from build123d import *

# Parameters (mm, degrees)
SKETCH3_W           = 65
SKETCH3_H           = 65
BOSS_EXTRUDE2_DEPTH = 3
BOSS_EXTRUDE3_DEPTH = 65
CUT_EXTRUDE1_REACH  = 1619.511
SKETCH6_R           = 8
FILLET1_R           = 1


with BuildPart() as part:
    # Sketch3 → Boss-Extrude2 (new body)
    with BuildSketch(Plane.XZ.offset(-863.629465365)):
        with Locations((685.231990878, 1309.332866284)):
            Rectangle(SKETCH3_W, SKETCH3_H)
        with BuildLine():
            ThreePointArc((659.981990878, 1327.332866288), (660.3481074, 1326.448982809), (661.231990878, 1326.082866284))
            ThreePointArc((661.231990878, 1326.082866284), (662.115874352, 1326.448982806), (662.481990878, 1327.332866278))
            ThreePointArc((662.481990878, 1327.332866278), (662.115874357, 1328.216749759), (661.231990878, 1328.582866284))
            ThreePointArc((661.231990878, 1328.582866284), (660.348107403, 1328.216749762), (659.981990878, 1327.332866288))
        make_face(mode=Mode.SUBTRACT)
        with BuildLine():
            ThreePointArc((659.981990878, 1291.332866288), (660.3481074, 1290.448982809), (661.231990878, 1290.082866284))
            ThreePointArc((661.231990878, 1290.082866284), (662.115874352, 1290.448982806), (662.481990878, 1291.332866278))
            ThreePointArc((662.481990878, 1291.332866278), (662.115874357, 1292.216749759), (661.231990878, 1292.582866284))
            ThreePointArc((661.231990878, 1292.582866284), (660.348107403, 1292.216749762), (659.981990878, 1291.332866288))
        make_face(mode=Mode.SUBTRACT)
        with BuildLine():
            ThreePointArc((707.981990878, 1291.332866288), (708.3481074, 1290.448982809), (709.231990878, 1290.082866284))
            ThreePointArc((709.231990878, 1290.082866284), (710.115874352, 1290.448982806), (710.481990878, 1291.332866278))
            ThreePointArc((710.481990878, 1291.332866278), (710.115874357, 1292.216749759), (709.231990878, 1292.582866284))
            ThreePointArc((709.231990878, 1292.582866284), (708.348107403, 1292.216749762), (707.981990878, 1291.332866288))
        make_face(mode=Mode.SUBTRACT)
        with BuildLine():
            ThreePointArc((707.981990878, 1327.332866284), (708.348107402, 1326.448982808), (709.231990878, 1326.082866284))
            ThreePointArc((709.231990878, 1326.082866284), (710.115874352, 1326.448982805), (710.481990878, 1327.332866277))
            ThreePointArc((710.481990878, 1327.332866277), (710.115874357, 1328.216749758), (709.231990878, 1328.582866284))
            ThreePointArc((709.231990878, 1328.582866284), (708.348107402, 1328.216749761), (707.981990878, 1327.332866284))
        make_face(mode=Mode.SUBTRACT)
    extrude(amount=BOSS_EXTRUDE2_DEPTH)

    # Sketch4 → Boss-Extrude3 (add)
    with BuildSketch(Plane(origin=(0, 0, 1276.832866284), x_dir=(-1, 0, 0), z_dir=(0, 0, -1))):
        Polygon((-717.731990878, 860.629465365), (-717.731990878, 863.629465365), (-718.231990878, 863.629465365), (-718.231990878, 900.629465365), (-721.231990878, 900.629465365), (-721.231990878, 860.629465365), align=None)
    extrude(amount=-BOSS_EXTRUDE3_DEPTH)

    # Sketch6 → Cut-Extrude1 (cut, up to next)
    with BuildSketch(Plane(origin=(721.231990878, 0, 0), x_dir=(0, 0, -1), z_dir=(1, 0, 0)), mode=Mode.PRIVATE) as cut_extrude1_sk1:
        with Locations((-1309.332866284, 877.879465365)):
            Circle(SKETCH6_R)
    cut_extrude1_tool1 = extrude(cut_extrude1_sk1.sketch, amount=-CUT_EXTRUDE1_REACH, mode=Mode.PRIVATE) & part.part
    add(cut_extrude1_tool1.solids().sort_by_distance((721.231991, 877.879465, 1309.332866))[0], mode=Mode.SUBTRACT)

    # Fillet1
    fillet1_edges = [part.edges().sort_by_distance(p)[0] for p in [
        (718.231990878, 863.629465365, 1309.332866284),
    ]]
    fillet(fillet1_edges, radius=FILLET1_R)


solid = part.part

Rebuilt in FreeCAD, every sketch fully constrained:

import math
import FreeCAD as App
import Part
import Sketcher

V = App.Vector
Q = App.Units.Quantity


def edges_at(feature, points):
    """Names of the edges that pass closest to the given points."""
    edges = feature.Shape.Edges
    near = lambda p: min(range(len(edges)), key=lambda i: edges[i].distToShape(Part.Vertex(*p))[0])
    return sorted({f"Edge{near(p) + 1}" for p in points})


def add_polygon(sketch, points):
    """Adds a closed chain of lines whose ends are joined by coincident constraints."""
    first, n = sketch.GeometryCount, len(points)
    for a, b in zip(points, points[1:] + points[:1]):
        sketch.addGeometry(Part.LineSegment(App.Vector(*a, 0), App.Vector(*b, 0)), False)
    for i in range(n):
        sketch.addConstraint(Sketcher.Constraint("Coincident", first + i, 2, first + (i + 1) % n, 1))

doc = App.newDocument("Part")
body = doc.addObject("PartDesign::Body", "Body")

# Sketch on XZ plane
sketch1 = doc.addObject("Sketcher::SketchObject", "Sketch")
body.addObject(sketch1)
sketch1.AttachmentSupport = (doc.XZ_Plane, [""])
sketch1.MapMode = "FlatFace"
sketch1.AttachmentOffset = App.Placement(V(0, 0, -863.629465), App.Rotation())
add_polygon(sketch1, [(652.7, 1341.8), (652.7, 1276.8), (717.7, 1276.8), (717.7, 1341.8)])  # lines 0-3
sketch1.addGeometry(Part.ArcOfCircle(Part.Circle(V(661.2, 1291.3, 0), V(0, 0, 1), 1.2), math.radians(180), math.radians(270)), False)  # 4
sketch1.addGeometry(Part.ArcOfCircle(Part.Circle(V(661.2, 1291.3, 0), V(0, 0, 1), 1.2), math.radians(90), math.radians(180)), False)  # 5
sketch1.addGeometry(Part.ArcOfCircle(Part.Circle(V(661.2, 1291.3, 0), V(0, 0, 1), 1.2), math.radians(0), math.radians(90)), False)  # 6
sketch1.addGeometry(Part.ArcOfCircle(Part.Circle(V(661.2, 1291.3, 0), V(0, 0, 1), 1.3), math.radians(-90), math.radians(0)), False)  # 7
sketch1.addGeometry(Part.ArcOfCircle(Part.Circle(V(709.2, 1291.3, 0), V(0, 0, 1), 1.2), math.radians(180), math.radians(270)), False)  # 8
sketch1.addGeometry(Part.ArcOfCircle(Part.Circle(V(709.2, 1291.3, 0), V(0, 0, 1), 1.2), math.radians(90), math.radians(180)), False)  # 9
sketch1.addGeometry(Part.ArcOfCircle(Part.Circle(V(709.2, 1291.3, 0), V(0, 0, 1), 1.2), math.radians(0), math.radians(90)), False)  # 10
sketch1.addGeometry(Part.ArcOfCircle(Part.Circle(V(709.2, 1291.3, 0), V(0, 0, 1), 1.3), math.radians(-90), math.radians(0)), False)  # 11
sketch1.addGeometry(Part.ArcOfCircle(Part.Circle(V(661.2, 1327.3, 0), V(0, 0, 1), 1.2), math.radians(180), math.radians(270)), False)  # 12
sketch1.addGeometry(Part.ArcOfCircle(Part.Circle(V(661.2, 1327.3, 0), V(0, 0, 1), 1.2), math.radians(90), math.radians(180)), False)  # 13
sketch1.addGeometry(Part.ArcOfCircle(Part.Circle(V(661.2, 1327.3, 0), V(0, 0, 1), 1.2), math.radians(0), math.radians(90)), False)  # 14
sketch1.addGeometry(Part.ArcOfCircle(Part.Circle(V(661.2, 1327.3, 0), V(0, 0, 1), 1.3), math.radians(-90), math.radians(0)), False)  # 15
sketch1.addGeometry(Part.ArcOfCircle(Part.Circle(V(709.2, 1327.3, 0), V(0, 0, 1), 1.3), math.radians(-180), math.radians(-90)), False)  # 16
sketch1.addGeometry(Part.ArcOfCircle(Part.Circle(V(709.2, 1327.3, 0), V(0, 0, 1), 1.2), math.radians(90), math.radians(180)), False)  # 17
sketch1.addGeometry(Part.ArcOfCircle(Part.Circle(V(709.2, 1327.3, 0), V(0, 0, 1), 1.2), math.radians(0), math.radians(90)), False)  # 18
sketch1.addGeometry(Part.ArcOfCircle(Part.Circle(V(709.2, 1327.3, 0), V(0, 0, 1), 1.2), math.radians(-90), math.radians(0)), False)  # 19
sketch1.addConstraint([
    Sketcher.Constraint("Tangent", 4, 1, 5, 2),
    Sketcher.Constraint("Tangent", 5, 1, 6, 2),
    Sketcher.Constraint("Tangent", 6, 1, 7, 2),
    Sketcher.Constraint("Tangent", 7, 1, 4, 2),
    Sketcher.Constraint("Tangent", 8, 1, 9, 2),
    Sketcher.Constraint("Tangent", 9, 1, 10, 2),
    Sketcher.Constraint("Tangent", 10, 1, 11, 2),
    Sketcher.Constraint("Tangent", 11, 1, 8, 2),
    Sketcher.Constraint("Tangent", 12, 1, 13, 2),
    Sketcher.Constraint("Tangent", 13, 1, 14, 2),
    Sketcher.Constraint("Tangent", 14, 1, 15, 2),
    Sketcher.Constraint("Tangent", 15, 1, 12, 2),
    Sketcher.Constraint("Tangent", 16, 1, 17, 2),
    Sketcher.Constraint("Tangent", 17, 1, 18, 2),
    Sketcher.Constraint("Tangent", 18, 1, 19, 2),
    Sketcher.Constraint("Tangent", 19, 1, 16, 2),
    Sketcher.Constraint("Vertical", 0),
    Sketcher.Constraint("Horizontal", 1),
    Sketcher.Constraint("Vertical", 2),
    Sketcher.Constraint("Horizontal", 3),
    Sketcher.Constraint("Equal", 4, 5),
    Sketcher.Constraint("Equal", 7, 8),
    Sketcher.Constraint("Equal", 8, 9),
    Sketcher.Constraint("Equal", 11, 12),
    Sketcher.Constraint("Equal", 12, 13),
    Sketcher.Constraint("Equal", 15, 16),
    Sketcher.Constraint("Equal", 16, 17),
    Sketcher.Constraint("Horizontal", 7, 3, 8, 3),
    Sketcher.Constraint("Horizontal", 15, 3, 16, 3),
    Sketcher.Constraint("Horizontal", 11, 3, 4, 1),
    Sketcher.Constraint("Horizontal", 4, 1, 6, 1),
    Sketcher.Constraint("Horizontal", 6, 1, 8, 1),
    Sketcher.Constraint("Horizontal", 8, 1, 10, 1),
    Sketcher.Constraint("Horizontal", 19, 3, 12, 1),
    Sketcher.Constraint("Horizontal", 12, 1, 14, 1),
    Sketcher.Constraint("Horizontal", 14, 1, 16, 1),
    Sketcher.Constraint("Horizontal", 16, 1, 18, 1),
    Sketcher.Constraint("Vertical", 7, 3, 12, 3),
    Sketcher.Constraint("Vertical", 11, 3, 16, 3),
    Sketcher.Constraint("Vertical", 15, 3, 5, 1),
    Sketcher.Constraint("Vertical", 5, 1, 7, 1),
    Sketcher.Constraint("Vertical", 19, 3, 9, 1),
    Sketcher.Constraint("Vertical", 9, 1, 11, 1),
    Sketcher.Constraint("Vertical", 7, 1, 13, 1),
    Sketcher.Constraint("Vertical", 13, 1, 15, 1),
    Sketcher.Constraint("Vertical", 11, 1, 17, 1),
    Sketcher.Constraint("Vertical", 17, 1, 19, 1),
    Sketcher.Constraint("Equal", 3, 0),
    Sketcher.Constraint("DistanceX", 1, 1, 1, 2, Q("65 mm")),
    Sketcher.Constraint("Radius", 4, Q("1.25 mm")),
    Sketcher.Constraint("DistanceX", 6, 3, 8, 3, Q("48 mm")),
    Sketcher.Constraint("DistanceY", 6, 3, 12, 3, Q("36 mm")),
    Sketcher.Constraint("DistanceX", 0, 2, 4, 3, Q("8.5 mm")),
    Sketcher.Constraint("DistanceY", 0, 2, 4, 3, Q("14.5 mm")),
    Sketcher.Constraint("DistanceX", -1, 1, 4, 3, Q("661.231991 mm")),
    Sketcher.Constraint("DistanceY", -1, 1, 4, 3, Q("1291.332866 mm")),
])
pad1 = doc.addObject("PartDesign::Pad", "Pad")
body.addObject(pad1)
pad1.Profile = sketch1
pad1.Length = 3

# Sketch on XY plane
sketch2 = doc.addObject("Sketcher::SketchObject", "Sketch001")
body.addObject(sketch2)
sketch2.AttachmentSupport = (doc.XY_Plane, [""])
sketch2.MapMode = "FlatFace"
sketch2.AttachmentOffset = App.Placement(V(0, 0, 1276.832866), App.Rotation())
add_polygon(sketch2, [(717.7, 860.6), (717.7, 863.6), (718.2, 863.6), (718.2, 900.6), (721.2, 900.6), (721.2, 860.6)])  # lines 0-5
sketch2.addConstraint([
    Sketcher.Constraint("Vertical", 0),
    Sketcher.Constraint("Horizontal", 1),
    Sketcher.Constraint("Vertical", 2),
    Sketcher.Constraint("Horizontal", 3),
    Sketcher.Constraint("Vertical", 4),
    Sketcher.Constraint("Horizontal", 5),
    Sketcher.Constraint("Equal", 3, 0),
    Sketcher.Constraint("DistanceX", 3, 1, 3, 2, Q("3 mm")),
    Sketcher.Constraint("DistanceY", 2, 1, 2, 2, Q("37 mm")),
    Sketcher.Constraint("DistanceX", 1, 1, 1, 2, Q("0.5 mm")),
    Sketcher.Constraint("DistanceX", -1, 1, 0, 2, Q("717.731991 mm")),
    Sketcher.Constraint("DistanceY", -1, 1, 0, 2, Q("863.629465 mm")),
])
pad2 = doc.addObject("PartDesign::Pad", "Pad001")
body.addObject(pad2)
pad2.Profile = sketch2
pad2.Length = 65

# Sketch on YZ plane
sketch3 = doc.addObject("Sketcher::SketchObject", "Sketch002")
body.addObject(sketch3)
sketch3.AttachmentSupport = (doc.YZ_Plane, [""])
sketch3.MapMode = "FlatFace"
sketch3.AttachmentOffset = App.Placement(V(0, 0, 721.231991), App.Rotation())
sketch3.addGeometry(Part.Circle(V(878, 1309, 0), V(0, 0, 1), 8), False)
sketch3.addConstraint([
    Sketcher.Constraint("Diameter", 0, Q("16 mm")),
    Sketcher.Constraint("DistanceX", -1, 1, 0, 3, Q("877.879465 mm")),
    Sketcher.Constraint("DistanceY", -1, 1, 0, 3, Q("1309.332866 mm")),
])
pocket1 = doc.addObject("PartDesign::Pocket", "Pocket")
body.addObject(pocket1)
pocket1.Profile = sketch3
pocket1.Type = "UpToFirst"
doc.recompute()

fillet = doc.addObject("PartDesign::Fillet", "Fillet")
body.addObject(fillet)
fillet.Base = (pocket1, edges_at(pocket1, [(718.232, 863.629, 1309.333)]))
fillet.Radius = 1

doc.recompute()
